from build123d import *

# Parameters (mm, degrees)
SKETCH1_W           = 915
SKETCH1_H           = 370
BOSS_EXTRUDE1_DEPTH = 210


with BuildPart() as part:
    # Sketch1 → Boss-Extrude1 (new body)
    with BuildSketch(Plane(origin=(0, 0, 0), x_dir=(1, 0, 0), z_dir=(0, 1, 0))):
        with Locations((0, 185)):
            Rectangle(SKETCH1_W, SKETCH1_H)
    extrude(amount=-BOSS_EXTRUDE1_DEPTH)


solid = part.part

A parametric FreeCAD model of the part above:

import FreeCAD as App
import Part
import Sketcher
Q = App.Units.Quantity


def add_polygon(sketch, points):
    """Adds a closed chain of lines whose ends are joined by coincident constraints."""
    first, n = sketch.GeometryCount, len(points)
    for a, b in zip(points, points[1:] + points[:1]):
        sketch.addGeometry(Part.LineSegment(App.Vector(*a, 0), App.Vector(*b, 0)), False)
    for i in range(n):
        sketch.addConstraint(Sketcher.Constraint("Coincident", first + i, 2, first + (i + 1) % n, 1))

doc = App.newDocument("Part")
body = doc.addObject("PartDesign::Body", "Body")

# Sketch on XZ plane
sketch1 = body.newObject("Sketcher::SketchObject", "Sketch")
sketch1.AttachmentSupport = (doc.getObject("XZ_Plane"), [""])
sketch1.MapMode = "FlatFace"
add_polygon(sketch1, [(-457.5, -370), (-457.5, 0), (457.5, 0), (457.5, -370)])  # lines 0-3
sketch1.addConstraint([
    Sketcher.Constraint("Vertical", 0),
    Sketcher.Constraint("Horizontal", 1),
    Sketcher.Constraint("Vertical", 2),
    Sketcher.Constraint("Horizontal", 3),
    Sketcher.Constraint("Symmetric", 0, 2, 1, 2, -1, 1),
    Sketcher.Constraint("DistanceX", 1, 1, 1, 2, Q("915 mm")),
    Sketcher.Constraint("DistanceY", 0, 1, 0, 2, Q("370 mm")),
])
pad1 = body.newObject("PartDesign::Pad", "Pad")
pad1.Profile = sketch1
pad1.Length = 210

doc.recompute()
